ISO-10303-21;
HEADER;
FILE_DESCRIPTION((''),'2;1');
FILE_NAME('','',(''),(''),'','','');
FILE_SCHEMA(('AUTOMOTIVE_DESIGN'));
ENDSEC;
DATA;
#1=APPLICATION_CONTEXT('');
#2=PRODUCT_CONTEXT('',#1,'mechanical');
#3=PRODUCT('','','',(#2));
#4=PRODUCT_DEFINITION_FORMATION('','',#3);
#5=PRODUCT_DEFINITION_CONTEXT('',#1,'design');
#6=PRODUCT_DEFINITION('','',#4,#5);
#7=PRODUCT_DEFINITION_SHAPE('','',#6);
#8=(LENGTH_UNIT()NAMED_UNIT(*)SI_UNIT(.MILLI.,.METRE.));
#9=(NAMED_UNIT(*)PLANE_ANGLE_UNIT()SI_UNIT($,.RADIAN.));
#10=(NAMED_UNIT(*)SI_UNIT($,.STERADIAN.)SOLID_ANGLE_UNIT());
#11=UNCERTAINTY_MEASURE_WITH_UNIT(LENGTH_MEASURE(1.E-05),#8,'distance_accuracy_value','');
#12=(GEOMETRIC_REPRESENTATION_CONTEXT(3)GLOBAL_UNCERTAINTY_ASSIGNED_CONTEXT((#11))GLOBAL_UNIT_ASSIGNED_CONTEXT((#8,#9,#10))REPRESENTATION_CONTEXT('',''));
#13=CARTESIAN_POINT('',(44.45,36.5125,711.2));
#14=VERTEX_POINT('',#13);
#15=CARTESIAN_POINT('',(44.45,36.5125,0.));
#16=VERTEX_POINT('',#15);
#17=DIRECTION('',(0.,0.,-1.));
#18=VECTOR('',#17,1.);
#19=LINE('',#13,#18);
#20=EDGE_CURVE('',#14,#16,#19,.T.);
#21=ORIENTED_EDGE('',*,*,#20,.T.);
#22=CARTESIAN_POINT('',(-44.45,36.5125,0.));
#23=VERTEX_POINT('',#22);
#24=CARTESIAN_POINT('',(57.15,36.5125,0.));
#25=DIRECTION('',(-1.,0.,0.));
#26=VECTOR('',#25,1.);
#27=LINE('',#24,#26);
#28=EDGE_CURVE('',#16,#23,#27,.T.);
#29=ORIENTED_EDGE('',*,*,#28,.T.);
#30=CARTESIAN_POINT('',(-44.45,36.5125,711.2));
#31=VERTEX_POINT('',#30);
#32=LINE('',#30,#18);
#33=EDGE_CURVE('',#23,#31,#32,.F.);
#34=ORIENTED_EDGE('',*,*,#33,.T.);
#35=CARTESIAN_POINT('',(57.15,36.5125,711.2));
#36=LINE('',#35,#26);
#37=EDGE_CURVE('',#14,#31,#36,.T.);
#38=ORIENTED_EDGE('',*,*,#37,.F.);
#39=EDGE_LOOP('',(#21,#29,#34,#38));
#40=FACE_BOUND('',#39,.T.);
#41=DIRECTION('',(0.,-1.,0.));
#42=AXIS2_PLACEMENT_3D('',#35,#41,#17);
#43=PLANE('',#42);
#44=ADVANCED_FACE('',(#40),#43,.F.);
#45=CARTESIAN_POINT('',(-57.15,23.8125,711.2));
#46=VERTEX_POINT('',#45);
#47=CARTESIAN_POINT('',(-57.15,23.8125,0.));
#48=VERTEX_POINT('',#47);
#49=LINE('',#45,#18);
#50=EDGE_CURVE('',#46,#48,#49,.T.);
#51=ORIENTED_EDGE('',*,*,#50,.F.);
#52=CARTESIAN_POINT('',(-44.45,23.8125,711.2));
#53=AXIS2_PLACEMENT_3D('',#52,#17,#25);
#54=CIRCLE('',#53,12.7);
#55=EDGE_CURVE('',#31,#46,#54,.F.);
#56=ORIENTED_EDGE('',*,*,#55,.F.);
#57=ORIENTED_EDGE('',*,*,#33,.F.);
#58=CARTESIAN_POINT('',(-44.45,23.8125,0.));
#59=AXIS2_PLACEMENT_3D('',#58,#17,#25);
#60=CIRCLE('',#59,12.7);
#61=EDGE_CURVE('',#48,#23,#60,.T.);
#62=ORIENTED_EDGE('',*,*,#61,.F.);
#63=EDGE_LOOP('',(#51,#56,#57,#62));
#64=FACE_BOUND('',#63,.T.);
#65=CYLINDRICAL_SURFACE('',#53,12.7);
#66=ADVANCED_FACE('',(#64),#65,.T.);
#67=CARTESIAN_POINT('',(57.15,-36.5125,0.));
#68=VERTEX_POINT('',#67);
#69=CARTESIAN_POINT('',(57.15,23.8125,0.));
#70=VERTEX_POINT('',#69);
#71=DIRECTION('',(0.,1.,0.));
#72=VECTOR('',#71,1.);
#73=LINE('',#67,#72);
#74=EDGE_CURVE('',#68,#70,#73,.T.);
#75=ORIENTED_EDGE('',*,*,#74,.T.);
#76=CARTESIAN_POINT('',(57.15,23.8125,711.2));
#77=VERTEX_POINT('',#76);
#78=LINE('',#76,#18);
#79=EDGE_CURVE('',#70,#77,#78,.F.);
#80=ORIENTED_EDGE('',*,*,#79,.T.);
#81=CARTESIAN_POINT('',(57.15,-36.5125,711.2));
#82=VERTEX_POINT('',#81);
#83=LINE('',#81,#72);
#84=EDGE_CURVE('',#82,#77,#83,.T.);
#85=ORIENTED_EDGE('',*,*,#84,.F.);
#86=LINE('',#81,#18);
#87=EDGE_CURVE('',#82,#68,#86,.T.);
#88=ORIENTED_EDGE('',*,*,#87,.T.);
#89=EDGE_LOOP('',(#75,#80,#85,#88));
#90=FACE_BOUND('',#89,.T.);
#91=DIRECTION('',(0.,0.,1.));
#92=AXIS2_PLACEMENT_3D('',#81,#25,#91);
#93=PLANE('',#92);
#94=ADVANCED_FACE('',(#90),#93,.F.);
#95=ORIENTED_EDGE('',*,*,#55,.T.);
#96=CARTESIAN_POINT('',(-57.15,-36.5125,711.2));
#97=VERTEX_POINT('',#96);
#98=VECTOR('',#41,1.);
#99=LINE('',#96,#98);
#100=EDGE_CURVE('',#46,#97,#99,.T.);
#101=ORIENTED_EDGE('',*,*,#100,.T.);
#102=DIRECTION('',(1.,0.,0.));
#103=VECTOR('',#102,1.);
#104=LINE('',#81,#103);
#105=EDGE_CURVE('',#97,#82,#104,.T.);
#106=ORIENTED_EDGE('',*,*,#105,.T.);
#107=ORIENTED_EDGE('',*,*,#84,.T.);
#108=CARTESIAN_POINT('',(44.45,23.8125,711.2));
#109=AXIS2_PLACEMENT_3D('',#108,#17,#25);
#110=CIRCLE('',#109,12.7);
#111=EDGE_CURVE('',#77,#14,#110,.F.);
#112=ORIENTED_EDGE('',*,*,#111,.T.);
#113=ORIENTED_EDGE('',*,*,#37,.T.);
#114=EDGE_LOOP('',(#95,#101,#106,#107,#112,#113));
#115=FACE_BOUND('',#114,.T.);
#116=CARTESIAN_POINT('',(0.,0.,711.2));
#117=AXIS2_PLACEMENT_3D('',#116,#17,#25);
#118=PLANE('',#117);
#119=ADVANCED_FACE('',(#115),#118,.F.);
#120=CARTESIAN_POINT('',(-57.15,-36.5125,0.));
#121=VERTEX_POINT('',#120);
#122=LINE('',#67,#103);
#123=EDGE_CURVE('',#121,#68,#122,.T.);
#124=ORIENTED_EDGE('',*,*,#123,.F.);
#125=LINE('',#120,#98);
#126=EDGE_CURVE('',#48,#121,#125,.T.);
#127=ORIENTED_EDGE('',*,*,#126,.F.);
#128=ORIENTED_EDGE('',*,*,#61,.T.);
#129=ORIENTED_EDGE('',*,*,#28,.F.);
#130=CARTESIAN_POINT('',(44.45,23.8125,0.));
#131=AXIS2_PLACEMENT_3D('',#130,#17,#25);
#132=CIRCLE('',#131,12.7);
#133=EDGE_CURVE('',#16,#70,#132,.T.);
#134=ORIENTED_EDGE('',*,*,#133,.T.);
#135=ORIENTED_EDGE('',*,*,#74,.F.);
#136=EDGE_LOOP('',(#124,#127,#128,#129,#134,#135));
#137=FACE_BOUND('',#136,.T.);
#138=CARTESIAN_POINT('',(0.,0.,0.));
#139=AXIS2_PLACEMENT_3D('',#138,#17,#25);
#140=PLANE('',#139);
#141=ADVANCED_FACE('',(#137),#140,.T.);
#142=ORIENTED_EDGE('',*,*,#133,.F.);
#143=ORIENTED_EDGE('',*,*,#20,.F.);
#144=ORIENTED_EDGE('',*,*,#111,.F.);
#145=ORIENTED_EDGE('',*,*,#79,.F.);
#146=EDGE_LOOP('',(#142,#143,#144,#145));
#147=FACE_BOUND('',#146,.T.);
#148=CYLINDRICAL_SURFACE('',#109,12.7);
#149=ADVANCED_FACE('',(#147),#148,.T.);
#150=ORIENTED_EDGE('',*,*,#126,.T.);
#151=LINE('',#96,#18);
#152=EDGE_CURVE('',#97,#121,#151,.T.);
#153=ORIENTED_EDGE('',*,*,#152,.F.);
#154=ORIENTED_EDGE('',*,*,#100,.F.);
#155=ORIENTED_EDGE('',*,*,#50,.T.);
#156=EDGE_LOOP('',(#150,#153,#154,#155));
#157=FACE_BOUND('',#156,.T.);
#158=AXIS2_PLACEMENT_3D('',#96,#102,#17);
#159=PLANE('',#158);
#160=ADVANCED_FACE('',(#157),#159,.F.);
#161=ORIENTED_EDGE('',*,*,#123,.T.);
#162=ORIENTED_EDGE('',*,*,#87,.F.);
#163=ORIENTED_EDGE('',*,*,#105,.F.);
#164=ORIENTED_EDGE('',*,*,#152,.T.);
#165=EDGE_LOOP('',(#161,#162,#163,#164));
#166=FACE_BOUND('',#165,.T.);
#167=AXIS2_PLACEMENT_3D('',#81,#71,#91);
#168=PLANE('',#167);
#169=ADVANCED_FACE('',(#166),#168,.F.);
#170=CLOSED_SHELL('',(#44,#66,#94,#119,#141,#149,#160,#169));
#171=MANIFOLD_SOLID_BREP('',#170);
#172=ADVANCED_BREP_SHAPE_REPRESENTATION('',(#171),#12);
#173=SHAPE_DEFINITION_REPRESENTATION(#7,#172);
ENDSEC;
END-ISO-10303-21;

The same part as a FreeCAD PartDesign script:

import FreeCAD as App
import Part
import Sketcher
Q = App.Units.Quantity


def edges_at(feature, points):
    """Names of the edges that pass closest to the given points."""
    edges = feature.Shape.Edges
    near = lambda p: min(range(len(edges)), key=lambda i: edges[i].distToShape(Part.Vertex(*p))[0])
    return sorted({f"Edge{near(p) + 1}" for p in points})

doc = App.newDocument("Part")
body = doc.addObject("PartDesign::Body", "Body")

sketch1 = body.newObject("Sketcher::SketchObject", "Sketch")
sketch1.AttachmentSupport = (doc.getObject("XY_Plane"), [""])
sketch1.MapMode = "FlatFace"
sketch1.addGeometry(Part.LineSegment(App.Vector(-57.15, -36.5125, 0), App.Vector(57.15, -36.5125, 0)), False)
sketch1.addGeometry(Part.LineSegment(App.Vector(57.15, -36.5125, 0), App.Vector(57.15, 36.5125, 0)), False)
sketch1.addGeometry(Part.LineSegment(App.Vector(57.15, 36.5125, 0), App.Vector(-57.15, 36.5125, 0)), False)
sketch1.addGeometry(Part.LineSegment(App.Vector(-57.15, 36.5125, 0), App.Vector(-57.15, -36.5125, 0)), False)
sketch1.addConstraint(Sketcher.Constraint("Coincident", 0, 2, 1, 1))
sketch1.addConstraint(Sketcher.Constraint("Coincident", 1, 2, 2, 1))
sketch1.addConstraint(Sketcher.Constraint("Coincident", 2, 2, 3, 1))
sketch1.addConstraint(Sketcher.Constraint("Coincident", 3, 2, 0, 1))
sketch1.addConstraint(Sketcher.Constraint("Horizontal", 0))
sketch1.addConstraint(Sketcher.Constraint("Vertical", 1))
sketch1.addConstraint(Sketcher.Constraint("Horizontal", 2))
sketch1.addConstraint(Sketcher.Constraint("Vertical", 3))
sketch1.addConstraint(Sketcher.Constraint("Symmetric", 0, 2, 2, 2, -1, 1))
sketch1.addConstraint(Sketcher.Constraint("DistanceX", 0, 1, 0, 2, Q("4.5 in")))
sketch1.addConstraint(Sketcher.Constraint("DistanceY", 1, 1, 1, 2, Q("2.875 in")))
pad1 = body.newObject("PartDesign::Pad", "Pad")
pad1.Profile = sketch1
pad1.Length = Q("28 in")
doc.recompute()

fillet = body.newObject("PartDesign::Fillet", "Fillet")
fillet.Base = (pad1, edges_at(pad1, [(57.15, 36.513, 355.6), (-57.15, 36.513, 355.6)]))
fillet.Radius = Q("0.5 in")

doc.recompute()
